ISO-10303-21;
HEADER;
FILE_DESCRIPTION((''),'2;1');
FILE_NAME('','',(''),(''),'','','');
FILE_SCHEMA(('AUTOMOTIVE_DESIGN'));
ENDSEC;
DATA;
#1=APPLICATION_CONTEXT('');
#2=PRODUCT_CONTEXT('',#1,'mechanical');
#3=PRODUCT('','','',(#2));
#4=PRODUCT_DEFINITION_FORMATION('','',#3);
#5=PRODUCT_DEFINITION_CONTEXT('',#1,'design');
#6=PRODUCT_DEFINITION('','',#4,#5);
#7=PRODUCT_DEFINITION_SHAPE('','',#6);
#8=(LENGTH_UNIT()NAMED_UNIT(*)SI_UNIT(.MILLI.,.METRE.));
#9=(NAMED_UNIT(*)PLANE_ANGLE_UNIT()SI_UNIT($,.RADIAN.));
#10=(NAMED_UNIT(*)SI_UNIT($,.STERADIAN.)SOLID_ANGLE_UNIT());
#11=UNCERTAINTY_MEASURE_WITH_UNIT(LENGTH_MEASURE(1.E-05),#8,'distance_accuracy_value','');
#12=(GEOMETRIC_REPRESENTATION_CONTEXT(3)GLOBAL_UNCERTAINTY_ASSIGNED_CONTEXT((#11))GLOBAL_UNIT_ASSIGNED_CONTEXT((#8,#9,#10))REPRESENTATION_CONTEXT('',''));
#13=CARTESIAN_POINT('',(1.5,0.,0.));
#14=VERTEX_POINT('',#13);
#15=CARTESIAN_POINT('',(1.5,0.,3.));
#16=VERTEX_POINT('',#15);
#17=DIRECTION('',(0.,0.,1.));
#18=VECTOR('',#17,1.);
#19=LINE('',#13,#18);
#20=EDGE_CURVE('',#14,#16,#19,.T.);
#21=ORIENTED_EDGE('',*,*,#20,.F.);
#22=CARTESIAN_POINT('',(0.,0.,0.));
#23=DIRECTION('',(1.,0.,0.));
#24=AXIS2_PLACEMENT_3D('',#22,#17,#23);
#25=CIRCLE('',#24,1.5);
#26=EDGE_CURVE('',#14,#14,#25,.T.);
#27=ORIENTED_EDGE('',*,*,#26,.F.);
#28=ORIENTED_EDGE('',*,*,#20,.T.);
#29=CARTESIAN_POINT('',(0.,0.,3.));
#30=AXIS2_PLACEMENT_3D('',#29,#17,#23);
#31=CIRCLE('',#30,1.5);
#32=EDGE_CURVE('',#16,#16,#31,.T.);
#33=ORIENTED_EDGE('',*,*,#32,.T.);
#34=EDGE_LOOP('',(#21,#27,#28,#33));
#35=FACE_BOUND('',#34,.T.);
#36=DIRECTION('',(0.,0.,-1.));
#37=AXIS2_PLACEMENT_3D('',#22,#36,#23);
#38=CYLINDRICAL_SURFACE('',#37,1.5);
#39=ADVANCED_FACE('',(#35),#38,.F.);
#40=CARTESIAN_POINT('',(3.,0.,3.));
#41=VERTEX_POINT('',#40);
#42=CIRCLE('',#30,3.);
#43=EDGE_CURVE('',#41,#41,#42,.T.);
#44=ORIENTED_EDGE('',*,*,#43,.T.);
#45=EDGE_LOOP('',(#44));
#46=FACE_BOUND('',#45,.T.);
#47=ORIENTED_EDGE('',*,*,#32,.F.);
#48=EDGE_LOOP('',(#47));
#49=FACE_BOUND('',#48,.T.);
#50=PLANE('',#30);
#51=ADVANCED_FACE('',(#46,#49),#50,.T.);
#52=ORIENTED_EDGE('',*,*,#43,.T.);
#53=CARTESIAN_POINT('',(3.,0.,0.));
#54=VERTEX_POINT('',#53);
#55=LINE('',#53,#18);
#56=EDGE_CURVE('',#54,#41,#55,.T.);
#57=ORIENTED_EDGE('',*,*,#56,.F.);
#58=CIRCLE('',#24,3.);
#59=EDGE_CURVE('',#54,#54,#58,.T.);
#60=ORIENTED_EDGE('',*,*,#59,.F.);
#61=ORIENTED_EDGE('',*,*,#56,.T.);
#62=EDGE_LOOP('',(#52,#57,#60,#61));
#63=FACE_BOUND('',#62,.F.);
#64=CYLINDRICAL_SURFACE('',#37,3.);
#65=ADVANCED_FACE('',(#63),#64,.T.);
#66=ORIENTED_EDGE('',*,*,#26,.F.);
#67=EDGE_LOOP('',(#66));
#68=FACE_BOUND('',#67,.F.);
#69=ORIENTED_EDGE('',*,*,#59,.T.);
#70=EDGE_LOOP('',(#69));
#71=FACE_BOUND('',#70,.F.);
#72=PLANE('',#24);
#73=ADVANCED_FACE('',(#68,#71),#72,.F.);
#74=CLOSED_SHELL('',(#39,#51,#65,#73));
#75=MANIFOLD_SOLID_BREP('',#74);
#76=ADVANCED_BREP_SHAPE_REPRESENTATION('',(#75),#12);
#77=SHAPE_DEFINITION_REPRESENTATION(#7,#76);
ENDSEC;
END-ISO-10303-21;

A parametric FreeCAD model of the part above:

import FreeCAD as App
import Part
import Sketcher
from FreeCAD import Vector

doc = App.newDocument("Part")
body = doc.addObject("PartDesign::Body", "Body")

sketch1 = doc.addObject("Sketcher::SketchObject", "Sketch")
body.addObject(sketch1)
sketch1.AttachmentSupport = (doc.XY_Plane, [""])
sketch1.MapMode = "FlatFace"
sketch1.addGeometry([
    Part.Circle(Vector(0, 0, 0), Vector(0, 0, 1), 3),
    Part.Circle(Vector(0, 0, 0), Vector(0, 0, 1), 1.5),
], False)
sketch1.addConstraint([
    Sketcher.Constraint("Coincident", 0, 3, -1, 1),
    Sketcher.Constraint("Coincident", 1, 3, -1, 1),
    Sketcher.Constraint("Diameter", 0, 6.0),
    Sketcher.Constraint("Diameter", 1, 3.0),
])
pad1 = doc.addObject("PartDesign::Pad", "Pad")
body.addObject(pad1)
pad1.Profile = sketch1
pad1.Length = 3

doc.recompute()
